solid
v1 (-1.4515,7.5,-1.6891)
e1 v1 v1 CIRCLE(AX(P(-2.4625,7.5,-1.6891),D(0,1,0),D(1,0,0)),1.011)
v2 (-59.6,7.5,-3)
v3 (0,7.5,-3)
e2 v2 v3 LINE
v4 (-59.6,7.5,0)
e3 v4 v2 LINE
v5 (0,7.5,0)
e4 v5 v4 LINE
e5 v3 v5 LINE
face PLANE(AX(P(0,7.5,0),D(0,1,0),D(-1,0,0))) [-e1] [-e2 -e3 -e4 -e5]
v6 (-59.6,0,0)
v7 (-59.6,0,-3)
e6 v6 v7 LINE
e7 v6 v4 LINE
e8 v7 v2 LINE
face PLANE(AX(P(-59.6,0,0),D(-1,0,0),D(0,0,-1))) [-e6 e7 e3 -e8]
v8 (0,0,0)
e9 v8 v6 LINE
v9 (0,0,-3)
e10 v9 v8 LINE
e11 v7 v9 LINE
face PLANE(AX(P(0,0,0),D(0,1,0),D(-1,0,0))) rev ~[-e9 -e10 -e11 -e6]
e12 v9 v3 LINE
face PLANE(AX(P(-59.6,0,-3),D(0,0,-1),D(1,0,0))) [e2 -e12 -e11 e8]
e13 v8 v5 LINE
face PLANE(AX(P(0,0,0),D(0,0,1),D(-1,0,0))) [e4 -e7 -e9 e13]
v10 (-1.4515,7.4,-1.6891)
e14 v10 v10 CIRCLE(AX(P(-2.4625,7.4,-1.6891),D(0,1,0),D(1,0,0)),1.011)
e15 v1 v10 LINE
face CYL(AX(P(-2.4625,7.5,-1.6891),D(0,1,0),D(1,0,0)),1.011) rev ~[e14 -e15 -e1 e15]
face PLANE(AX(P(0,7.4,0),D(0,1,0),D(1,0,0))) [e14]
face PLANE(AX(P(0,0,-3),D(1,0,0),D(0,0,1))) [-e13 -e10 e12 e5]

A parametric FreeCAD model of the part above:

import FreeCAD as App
import Part
import Sketcher
Q = App.Units.Quantity

doc = App.newDocument("Part")
body = doc.addObject("PartDesign::Body", "Body")

# Sketch on XZ plane
sketch1 = doc.addObject("Sketcher::SketchObject", "Sketch")
body.addObject(sketch1)
sketch1.AttachmentSupport = (doc.XZ_Plane, [""])
sketch1.MapMode = "FlatFace"
sketch1.addGeometry(Part.LineSegment(App.Vector(-59.6, 0, 0), App.Vector(0, 0, 0)), False)
sketch1.addGeometry(Part.LineSegment(App.Vector(0, 0, 0), App.Vector(0, -3, 0)), False)
sketch1.addGeometry(Part.LineSegment(App.Vector(0, -3, 0), App.Vector(-59.6, -3, 0)), False)
sketch1.addGeometry(Part.LineSegment(App.Vector(-59.6, -3, 0), App.Vector(-59.6, 0, 0)), False)
sketch1.addConstraint(Sketcher.Constraint("Coincident", 0, 2, 1, 1))
sketch1.addConstraint(Sketcher.Constraint("Coincident", 1, 2, 2, 1))
sketch1.addConstraint(Sketcher.Constraint("Coincident", 2, 2, 3, 1))
sketch1.addConstraint(Sketcher.Constraint("Coincident", 3, 2, 0, 1))
sketch1.addConstraint(Sketcher.Constraint("Horizontal", 0))
sketch1.addConstraint(Sketcher.Constraint("Vertical", 1))
sketch1.addConstraint(Sketcher.Constraint("Horizontal", 2))
sketch1.addConstraint(Sketcher.Constraint("Vertical", 3))
sketch1.addConstraint(Sketcher.Constraint("Coincident", 0, 2, -1, 1))
sketch1.addConstraint(Sketcher.Constraint("DistanceY", 1, 2, 1, 1, Q("3 mm")))
sketch1.addConstraint(Sketcher.Constraint("DistanceX", 0, 1, 0, 2, Q("59.6 mm")))
pad1 = doc.addObject("PartDesign::Pad", "Pad")
body.addObject(pad1)
pad1.Profile = sketch1
pad1.Length = 7.5
pad1.Reversed = True

# Sketch on XZ plane
sketch2 = doc.addObject("Sketcher::SketchObject", "Sketch001")
body.addObject(sketch2)
sketch2.AttachmentSupport = (doc.XZ_Plane, [""])
sketch2.MapMode = "FlatFace"
sketch2.AttachmentOffset = App.Placement(App.Vector(0, 0, -7.5), App.Rotation())
sketch2.addGeometry(Part.Circle(App.Vector(-2.4625, -1.6891, 0), App.Vector(0, 0, 1), 1.011), False)
sketch2.addConstraint(Sketcher.Constraint("Diameter", 0, Q("2.022 mm")))
sketch2.addConstraint(Sketcher.Constraint("DistanceY", 0, 3, -1, 1, Q("1.689 mm")))
sketch2.addConstraint(Sketcher.Constraint("DistanceX", 0, 3, -1, 1, Q("2.4625 mm")))
pocket1 = doc.addObject("PartDesign::Pocket", "Pocket")
body.addObject(pocket1)
pocket1.Profile = sketch2
pocket1.Length = 0.1
pocket1.Reversed = True

doc.recompute()
